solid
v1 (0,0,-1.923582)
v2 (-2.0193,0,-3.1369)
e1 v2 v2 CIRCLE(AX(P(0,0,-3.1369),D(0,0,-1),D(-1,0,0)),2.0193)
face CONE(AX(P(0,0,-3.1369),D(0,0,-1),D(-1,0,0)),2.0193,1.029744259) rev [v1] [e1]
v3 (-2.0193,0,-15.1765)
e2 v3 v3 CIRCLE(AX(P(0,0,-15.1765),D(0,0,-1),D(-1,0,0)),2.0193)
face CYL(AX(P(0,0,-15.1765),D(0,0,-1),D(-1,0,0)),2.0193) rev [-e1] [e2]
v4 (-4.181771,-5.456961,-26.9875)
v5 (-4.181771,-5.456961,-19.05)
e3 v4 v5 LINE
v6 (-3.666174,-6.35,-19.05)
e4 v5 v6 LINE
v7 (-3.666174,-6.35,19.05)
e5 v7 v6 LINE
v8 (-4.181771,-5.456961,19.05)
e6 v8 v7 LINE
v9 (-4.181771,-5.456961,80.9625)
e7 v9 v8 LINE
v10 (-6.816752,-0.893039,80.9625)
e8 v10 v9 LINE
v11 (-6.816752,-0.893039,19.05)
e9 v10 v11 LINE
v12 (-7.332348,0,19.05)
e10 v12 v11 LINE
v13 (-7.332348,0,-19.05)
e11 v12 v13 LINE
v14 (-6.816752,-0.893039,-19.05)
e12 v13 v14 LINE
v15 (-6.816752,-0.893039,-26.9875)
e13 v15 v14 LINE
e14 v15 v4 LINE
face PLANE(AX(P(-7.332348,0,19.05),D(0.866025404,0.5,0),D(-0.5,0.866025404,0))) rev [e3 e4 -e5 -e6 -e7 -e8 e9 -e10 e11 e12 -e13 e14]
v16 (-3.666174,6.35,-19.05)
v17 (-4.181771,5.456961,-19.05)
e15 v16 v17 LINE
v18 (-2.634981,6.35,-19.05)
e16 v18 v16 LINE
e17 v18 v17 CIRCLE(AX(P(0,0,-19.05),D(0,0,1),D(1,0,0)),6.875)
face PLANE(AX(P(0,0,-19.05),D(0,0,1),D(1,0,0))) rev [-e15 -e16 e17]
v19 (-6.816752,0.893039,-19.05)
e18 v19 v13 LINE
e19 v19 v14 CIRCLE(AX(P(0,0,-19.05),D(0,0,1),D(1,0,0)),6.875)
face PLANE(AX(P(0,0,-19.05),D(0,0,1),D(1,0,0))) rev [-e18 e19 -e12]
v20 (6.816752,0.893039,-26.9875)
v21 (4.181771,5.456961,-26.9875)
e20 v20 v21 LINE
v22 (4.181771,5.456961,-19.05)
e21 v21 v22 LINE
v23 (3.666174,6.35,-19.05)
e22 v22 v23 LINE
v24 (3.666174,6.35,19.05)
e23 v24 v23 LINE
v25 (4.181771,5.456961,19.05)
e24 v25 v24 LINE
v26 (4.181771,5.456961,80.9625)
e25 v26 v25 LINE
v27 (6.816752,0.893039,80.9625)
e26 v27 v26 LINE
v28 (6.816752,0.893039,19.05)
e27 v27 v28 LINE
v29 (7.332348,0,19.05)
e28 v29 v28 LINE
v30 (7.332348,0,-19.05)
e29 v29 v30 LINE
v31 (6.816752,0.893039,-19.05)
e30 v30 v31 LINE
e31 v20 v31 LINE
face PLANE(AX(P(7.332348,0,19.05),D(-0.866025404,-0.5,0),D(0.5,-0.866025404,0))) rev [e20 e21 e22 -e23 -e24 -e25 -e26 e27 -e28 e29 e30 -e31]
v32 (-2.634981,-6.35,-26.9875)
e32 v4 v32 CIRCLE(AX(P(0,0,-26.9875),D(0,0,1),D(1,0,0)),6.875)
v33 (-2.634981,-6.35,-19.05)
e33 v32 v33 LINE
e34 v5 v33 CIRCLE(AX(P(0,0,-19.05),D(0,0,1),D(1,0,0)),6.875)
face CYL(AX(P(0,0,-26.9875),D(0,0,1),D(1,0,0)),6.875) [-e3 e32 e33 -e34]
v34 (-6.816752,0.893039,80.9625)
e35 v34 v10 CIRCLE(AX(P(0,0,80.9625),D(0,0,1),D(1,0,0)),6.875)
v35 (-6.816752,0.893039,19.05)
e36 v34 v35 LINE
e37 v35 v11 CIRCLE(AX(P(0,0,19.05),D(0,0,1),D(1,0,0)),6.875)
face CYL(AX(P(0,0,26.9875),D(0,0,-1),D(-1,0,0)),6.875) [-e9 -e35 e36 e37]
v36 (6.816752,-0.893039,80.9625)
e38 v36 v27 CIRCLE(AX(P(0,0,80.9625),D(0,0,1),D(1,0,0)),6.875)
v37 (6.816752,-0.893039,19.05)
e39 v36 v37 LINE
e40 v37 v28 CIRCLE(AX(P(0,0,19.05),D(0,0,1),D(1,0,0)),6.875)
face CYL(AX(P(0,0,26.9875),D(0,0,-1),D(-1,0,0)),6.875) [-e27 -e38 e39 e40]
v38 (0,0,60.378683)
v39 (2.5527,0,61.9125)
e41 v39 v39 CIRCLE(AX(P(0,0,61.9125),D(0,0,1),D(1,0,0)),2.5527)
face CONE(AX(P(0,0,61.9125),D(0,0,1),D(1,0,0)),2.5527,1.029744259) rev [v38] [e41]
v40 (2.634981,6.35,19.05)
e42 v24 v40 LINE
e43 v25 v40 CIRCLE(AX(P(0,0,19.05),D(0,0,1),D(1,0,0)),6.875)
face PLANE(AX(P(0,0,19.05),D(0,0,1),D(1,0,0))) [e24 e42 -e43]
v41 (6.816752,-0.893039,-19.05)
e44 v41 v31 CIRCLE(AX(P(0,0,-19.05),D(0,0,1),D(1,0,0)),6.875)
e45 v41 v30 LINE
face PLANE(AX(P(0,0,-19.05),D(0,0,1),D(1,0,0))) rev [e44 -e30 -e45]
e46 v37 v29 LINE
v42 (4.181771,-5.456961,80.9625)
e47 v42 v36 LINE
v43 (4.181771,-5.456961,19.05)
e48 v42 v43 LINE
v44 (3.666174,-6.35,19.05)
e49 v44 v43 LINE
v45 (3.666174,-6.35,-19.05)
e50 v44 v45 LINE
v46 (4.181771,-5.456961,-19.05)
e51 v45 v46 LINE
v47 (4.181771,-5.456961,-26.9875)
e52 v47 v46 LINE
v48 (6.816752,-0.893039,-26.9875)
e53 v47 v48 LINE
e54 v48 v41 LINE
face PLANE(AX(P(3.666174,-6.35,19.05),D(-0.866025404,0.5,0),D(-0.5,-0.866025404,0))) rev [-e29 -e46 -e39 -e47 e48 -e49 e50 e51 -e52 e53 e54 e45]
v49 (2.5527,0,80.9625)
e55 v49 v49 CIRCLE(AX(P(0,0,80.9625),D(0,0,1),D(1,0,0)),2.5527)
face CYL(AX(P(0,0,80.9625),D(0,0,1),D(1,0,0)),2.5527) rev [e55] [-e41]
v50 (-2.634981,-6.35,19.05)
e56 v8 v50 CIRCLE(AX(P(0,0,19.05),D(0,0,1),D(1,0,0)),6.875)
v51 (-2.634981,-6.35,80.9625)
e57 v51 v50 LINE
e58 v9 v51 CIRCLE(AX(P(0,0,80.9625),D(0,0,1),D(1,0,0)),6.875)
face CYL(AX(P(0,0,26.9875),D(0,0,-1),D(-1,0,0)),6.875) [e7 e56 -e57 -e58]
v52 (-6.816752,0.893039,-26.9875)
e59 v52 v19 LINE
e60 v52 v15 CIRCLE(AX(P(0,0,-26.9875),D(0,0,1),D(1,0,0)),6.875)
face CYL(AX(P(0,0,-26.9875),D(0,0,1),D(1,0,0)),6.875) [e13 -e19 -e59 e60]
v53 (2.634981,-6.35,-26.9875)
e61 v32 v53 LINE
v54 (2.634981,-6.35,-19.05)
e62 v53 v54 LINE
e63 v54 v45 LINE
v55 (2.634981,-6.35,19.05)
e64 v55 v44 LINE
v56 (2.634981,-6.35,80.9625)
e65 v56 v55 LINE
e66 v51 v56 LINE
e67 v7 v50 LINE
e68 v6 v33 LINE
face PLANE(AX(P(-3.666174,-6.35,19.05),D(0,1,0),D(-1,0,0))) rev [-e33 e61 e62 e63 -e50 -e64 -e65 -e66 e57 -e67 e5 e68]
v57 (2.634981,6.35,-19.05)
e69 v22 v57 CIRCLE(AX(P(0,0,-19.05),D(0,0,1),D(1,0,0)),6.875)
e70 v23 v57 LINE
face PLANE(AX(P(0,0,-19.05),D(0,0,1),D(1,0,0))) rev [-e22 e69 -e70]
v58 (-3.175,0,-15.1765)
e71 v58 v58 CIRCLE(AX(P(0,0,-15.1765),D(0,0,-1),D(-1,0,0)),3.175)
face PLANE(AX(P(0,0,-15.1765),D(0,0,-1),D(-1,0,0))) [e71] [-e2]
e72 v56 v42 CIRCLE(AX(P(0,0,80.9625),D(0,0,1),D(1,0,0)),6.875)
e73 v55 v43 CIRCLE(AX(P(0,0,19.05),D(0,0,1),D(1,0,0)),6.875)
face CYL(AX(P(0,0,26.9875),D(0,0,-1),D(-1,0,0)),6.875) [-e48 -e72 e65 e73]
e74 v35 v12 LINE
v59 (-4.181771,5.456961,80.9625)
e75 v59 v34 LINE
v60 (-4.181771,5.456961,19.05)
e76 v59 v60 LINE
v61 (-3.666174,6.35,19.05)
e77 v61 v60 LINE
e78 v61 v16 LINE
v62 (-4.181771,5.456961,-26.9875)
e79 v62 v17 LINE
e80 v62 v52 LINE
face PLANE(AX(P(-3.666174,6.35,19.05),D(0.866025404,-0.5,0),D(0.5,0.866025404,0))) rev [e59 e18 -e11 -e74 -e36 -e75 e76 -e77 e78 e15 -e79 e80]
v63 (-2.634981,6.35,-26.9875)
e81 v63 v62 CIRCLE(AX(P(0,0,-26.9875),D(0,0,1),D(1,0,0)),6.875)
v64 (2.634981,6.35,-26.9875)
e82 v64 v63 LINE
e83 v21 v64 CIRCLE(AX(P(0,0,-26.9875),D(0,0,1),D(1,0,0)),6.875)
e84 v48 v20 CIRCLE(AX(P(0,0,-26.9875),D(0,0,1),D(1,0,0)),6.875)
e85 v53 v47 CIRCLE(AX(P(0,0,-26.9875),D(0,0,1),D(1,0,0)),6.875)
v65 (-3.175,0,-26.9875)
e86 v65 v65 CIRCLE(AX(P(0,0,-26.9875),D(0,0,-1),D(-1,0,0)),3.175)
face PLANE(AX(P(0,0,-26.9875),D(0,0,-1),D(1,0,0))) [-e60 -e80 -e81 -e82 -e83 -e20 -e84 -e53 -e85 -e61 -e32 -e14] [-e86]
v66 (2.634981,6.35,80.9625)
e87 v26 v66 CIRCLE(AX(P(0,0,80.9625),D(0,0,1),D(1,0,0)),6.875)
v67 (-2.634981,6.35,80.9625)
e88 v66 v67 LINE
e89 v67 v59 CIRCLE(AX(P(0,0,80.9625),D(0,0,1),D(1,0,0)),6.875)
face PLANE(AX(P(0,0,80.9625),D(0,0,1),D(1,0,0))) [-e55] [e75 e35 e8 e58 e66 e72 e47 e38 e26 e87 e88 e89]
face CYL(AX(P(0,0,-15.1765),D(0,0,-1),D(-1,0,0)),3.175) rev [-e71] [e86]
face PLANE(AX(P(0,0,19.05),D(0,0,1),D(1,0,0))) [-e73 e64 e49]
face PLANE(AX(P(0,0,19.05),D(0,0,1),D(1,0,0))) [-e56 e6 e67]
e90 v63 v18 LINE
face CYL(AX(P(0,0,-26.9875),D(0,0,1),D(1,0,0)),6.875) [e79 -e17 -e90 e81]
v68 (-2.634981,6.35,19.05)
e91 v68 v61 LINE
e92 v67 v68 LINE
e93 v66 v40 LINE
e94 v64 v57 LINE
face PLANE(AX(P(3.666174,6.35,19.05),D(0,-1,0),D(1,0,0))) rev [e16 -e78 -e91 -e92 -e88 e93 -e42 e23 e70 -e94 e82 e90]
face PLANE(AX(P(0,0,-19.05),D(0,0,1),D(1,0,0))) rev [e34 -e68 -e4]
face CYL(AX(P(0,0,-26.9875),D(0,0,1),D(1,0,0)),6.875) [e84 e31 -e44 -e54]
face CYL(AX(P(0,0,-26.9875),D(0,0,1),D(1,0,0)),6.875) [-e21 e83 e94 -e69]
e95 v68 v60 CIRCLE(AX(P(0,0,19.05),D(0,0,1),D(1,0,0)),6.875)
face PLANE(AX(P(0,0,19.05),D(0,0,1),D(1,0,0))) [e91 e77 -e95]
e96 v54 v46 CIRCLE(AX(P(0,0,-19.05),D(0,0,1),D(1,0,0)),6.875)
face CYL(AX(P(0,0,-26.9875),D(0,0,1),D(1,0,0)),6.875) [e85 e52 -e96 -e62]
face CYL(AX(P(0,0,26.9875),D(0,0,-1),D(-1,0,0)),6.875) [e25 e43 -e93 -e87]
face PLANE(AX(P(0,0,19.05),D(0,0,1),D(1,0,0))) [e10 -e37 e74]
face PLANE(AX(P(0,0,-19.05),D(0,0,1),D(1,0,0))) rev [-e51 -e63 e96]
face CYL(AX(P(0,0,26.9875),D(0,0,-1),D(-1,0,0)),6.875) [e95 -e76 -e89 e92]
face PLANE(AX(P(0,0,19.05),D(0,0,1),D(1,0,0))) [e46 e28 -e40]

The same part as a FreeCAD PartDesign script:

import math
import FreeCAD as App
import Part
import Sketcher
Q = App.Units.Quantity


def add_polygon(sketch, points):
    """Adds a closed chain of lines whose ends are joined by coincident constraints."""
    first, n = sketch.GeometryCount, len(points)
    for a, b in zip(points, points[1:] + points[:1]):
        sketch.addGeometry(Part.LineSegment(App.Vector(*a, 0), App.Vector(*b, 0)), False)
    for i in range(n):
        sketch.addConstraint(Sketcher.Constraint("Coincident", first + i, 2, first + (i + 1) % n, 1))

doc = App.newDocument("Part")
body = doc.addObject("PartDesign::Body", "Body")

# Sketch on XY plane
sketch1 = doc.addObject("Sketcher::SketchObject", "Sketch")
body.addObject(sketch1)
sketch1.AttachmentSupport = (doc.XY_Plane, [""])
sketch1.MapMode = "FlatFace"
add_polygon(sketch1, [(-7, 0), (-4, -6), (4, -6), (7, 0), (4, 6), (-4, 6)])  # lines 0-5
sketch1.addConstraint([
    Sketcher.Constraint("Horizontal", 1),
    Sketcher.Constraint("Horizontal", 4),
    Sketcher.Constraint("Symmetric", 0, 2, 3, 2, -1, 1),
    Sketcher.Constraint("Symmetric", 2, 2, 5, 2, -1, 1),
    Sketcher.Constraint("PointOnObject", 2, 2, -1),
    Sketcher.Constraint("Parallel", 2, 5),
    Sketcher.Constraint("Vertical", 1, 2, 3, 2),
    Sketcher.Constraint("Angle", 0, Q("-60 deg")),
    Sketcher.Constraint("DistanceY", 1, 2, 3, 2, Q("0.5 in")),
    Sketcher.Constraint("DistanceX", 1, 1, 1, 2, 7.332348),
])
pad1 = doc.addObject("PartDesign::Pad", "Pad")
body.addObject(pad1)
pad1.Profile = sketch1
pad1.Length = Q("1.5 in")
pad1.Midplane = True

# Sketch on XY plane
sketch2 = doc.addObject("Sketcher::SketchObject", "Sketch001")
body.addObject(sketch2)
sketch2.AttachmentSupport = (doc.XY_Plane, [""])
sketch2.MapMode = "FlatFace"
sketch2.AttachmentOffset = App.Placement(App.Vector(0, 0, 0.75 * 25.4), App.Rotation())
sketch2.addGeometry([
    Part.LineSegment(App.Vector(6.8, 0.9, 0), App.Vector(4.2, 5.5, 0)),  # 0
    Part.ArcOfCircle(Part.Circle(App.Vector(0, 0, 0), App.Vector(0, 0, 1), 6.9), math.radians(52.54), math.radians(67.46)),  # 1
    Part.LineSegment(App.Vector(2.6, 6.3, 0), App.Vector(-2.6, 6.3, 0)),  # 2
    Part.ArcOfCircle(Part.Circle(App.Vector(0, 0, 0), App.Vector(0, 0, 1), 6.9), math.radians(112.54), math.radians(127.46)),  # 3
    Part.LineSegment(App.Vector(-4.2, 5.5, 0), App.Vector(-6.8, 0.9, 0)),  # 4
    Part.ArcOfCircle(Part.Circle(App.Vector(0, 0, 0), App.Vector(0, 0, 1), 6.9), math.radians(172.54), math.radians(187.46)),  # 5
    Part.LineSegment(App.Vector(-6.8, -0.9, 0), App.Vector(-4.2, -5.5, 0)),  # 6
    Part.ArcOfCircle(Part.Circle(App.Vector(0, 0, 0), App.Vector(0, 0, 1), 6.9), math.radians(-127.46), math.radians(-112.54)),  # 7
    Part.LineSegment(App.Vector(-2.6, -6.3, 0), App.Vector(2.6, -6.3, 0)),  # 8
    Part.ArcOfCircle(Part.Circle(App.Vector(0, 0, 0), App.Vector(0, 0, 1), 6.9), math.radians(-67.46), math.radians(-52.54)),  # 9
    Part.LineSegment(App.Vector(4.2, -5.5, 0), App.Vector(6.8, -0.9, 0)),  # 10
    Part.ArcOfCircle(Part.Circle(App.Vector(0, 0, 0), App.Vector(0, 0, 1), 6.9), math.radians(-7.46), math.radians(7.46)),  # 11
], False)
sketch2.addConstraint([
    Sketcher.Constraint("Coincident", 0, 2, 1, 1),
    Sketcher.Constraint("Coincident", 1, 2, 2, 1),
    Sketcher.Constraint("Coincident", 2, 2, 3, 1),
    Sketcher.Constraint("Coincident", 3, 2, 4, 1),
    Sketcher.Constraint("Coincident", 4, 2, 5, 1),
    Sketcher.Constraint("Coincident", 5, 2, 6, 1),
    Sketcher.Constraint("Coincident", 6, 2, 7, 1),
    Sketcher.Constraint("Coincident", 7, 2, 8, 1),
    Sketcher.Constraint("Coincident", 8, 2, 9, 1),
    Sketcher.Constraint("Coincident", 9, 2, 10, 1),
    Sketcher.Constraint("Coincident", 10, 2, 11, 1),
    Sketcher.Constraint("Coincident", 11, 2, 0, 1),
    Sketcher.Constraint("Horizontal", 2),
    Sketcher.Constraint("Horizontal", 8),
    Sketcher.Constraint("Coincident", 1, 3, -1, 1),
    Sketcher.Constraint("Coincident", 3, 3, -1, 1),
    Sketcher.Constraint("Coincident", 5, 3, -1, 1),
    Sketcher.Constraint("Coincident", 7, 3, -1, 1),
    Sketcher.Constraint("Coincident", 9, 3, -1, 1),
    Sketcher.Constraint("Coincident", 11, 3, -1, 1),
    Sketcher.Constraint("Equal", 1, 3),
    Sketcher.Constraint("Equal", 3, 5),
    Sketcher.Constraint("Equal", 5, 7),
    Sketcher.Constraint("Equal", 7, 9),
    Sketcher.Constraint("Equal", 9, 11),
    Sketcher.Constraint("Parallel", 0, 6),
    Sketcher.Constraint("Parallel", 4, 10),
    Sketcher.Constraint("Horizontal", 0, 2, 3, 2),
    Sketcher.Constraint("Horizontal", 6, 2, 9, 2),
    Sketcher.Constraint("Horizontal", 5, 2, 10, 2),
    Sketcher.Constraint("Vertical", 4, 2, 5, 2),
    Sketcher.Constraint("Vertical", 2, 2, 7, 2),
    Sketcher.Constraint("Angle", 0, Q("120 deg")),
    Sketcher.Constraint("DistanceY", -1, 1, 1, 2, Q("0.25 in")),
    Sketcher.Constraint("Radius", 1, 6.875),
    Sketcher.Constraint("DistanceY", 5, 2, 3, 2, Q("0.25 in")),
])
pad2 = doc.addObject("PartDesign::Pad", "Pad001")
body.addObject(pad2)
pad2.Profile = sketch2
pad2.Length = Q("0.3125 in")
doc.recompute()

mirrored = doc.addObject("PartDesign::Mirrored", "Mirrored")
body.addObject(mirrored)
mirrored.Originals = [pad2]
mirrored.MirrorPlane = (doc.XY_Plane, [""])
body.Tip = mirrored

# Sketch on XY plane
sketch3 = doc.addObject("Sketcher::SketchObject", "Sketch002")
body.addObject(sketch3)
sketch3.AttachmentSupport = (doc.XY_Plane, [""])
sketch3.MapMode = "FlatFace"
sketch3.AttachmentOffset = App.Placement(App.Vector(0, 0, 1.0625 * 25.4), App.Rotation())
sketch3.addGeometry([
    Part.LineSegment(App.Vector(6.8, 0.9, 0), App.Vector(4.2, 5.5, 0)),  # 0
    Part.ArcOfCircle(Part.Circle(App.Vector(0, 0, 0), App.Vector(0, 0, 1), 6.9), math.radians(52.54), math.radians(67.46)),  # 1
    Part.LineSegment(App.Vector(2.6, 6.3, 0), App.Vector(-2.6, 6.3, 0)),  # 2
    Part.ArcOfCircle(Part.Circle(App.Vector(0, 0, 0), App.Vector(0, 0, 1), 6.9), math.radians(112.54), math.radians(127.46)),  # 3
    Part.LineSegment(App.Vector(-4.2, 5.5, 0), App.Vector(-6.8, 0.9, 0)),  # 4
    Part.ArcOfCircle(Part.Circle(App.Vector(0, 0, 0), App.Vector(0, 0, 1), 6.9), math.radians(172.54), math.radians(187.46)),  # 5
    Part.LineSegment(App.Vector(-6.8, -0.9, 0), App.Vector(-4.2, -5.5, 0)),  # 6
    Part.ArcOfCircle(Part.Circle(App.Vector(0, 0, 0), App.Vector(0, 0, 1), 6.9), math.radians(-127.46), math.radians(-112.54)),  # 7
    Part.LineSegment(App.Vector(-2.6, -6.3, 0), App.Vector(2.6, -6.3, 0)),  # 8
    Part.ArcOfCircle(Part.Circle(App.Vector(0, 0, 0), App.Vector(0, 0, 1), 6.9), math.radians(-67.46), math.radians(-52.54)),  # 9
    Part.LineSegment(App.Vector(4.2, -5.5, 0), App.Vector(6.8, -0.9, 0)),  # 10
    Part.ArcOfCircle(Part.Circle(App.Vector(0, 0, 0), App.Vector(0, 0, 1), 6.9), math.radians(-7.46), math.radians(7.46)),  # 11
], False)
sketch3.addConstraint([
    Sketcher.Constraint("Coincident", 0, 2, 1, 1),
    Sketcher.Constraint("Coincident", 1, 2, 2, 1),
    Sketcher.Constraint("Coincident", 2, 2, 3, 1),
    Sketcher.Constraint("Coincident", 3, 2, 4, 1),
    Sketcher.Constraint("Coincident", 4, 2, 5, 1),
    Sketcher.Constraint("Coincident", 5, 2, 6, 1),
    Sketcher.Constraint("Coincident", 6, 2, 7, 1),
    Sketcher.Constraint("Coincident", 7, 2, 8, 1),
    Sketcher.Constraint("Coincident", 8, 2, 9, 1),
    Sketcher.Constraint("Coincident", 9, 2, 10, 1),
    Sketcher.Constraint("Coincident", 10, 2, 11, 1),
    Sketcher.Constraint("Coincident", 11, 2, 0, 1),
    Sketcher.Constraint("Horizontal", 2),
    Sketcher.Constraint("Horizontal", 8),
    Sketcher.Constraint("Coincident", 1, 3, -1, 1),
    Sketcher.Constraint("Coincident", 3, 3, -1, 1),
    Sketcher.Constraint("Coincident", 5, 3, -1, 1),
    Sketcher.Constraint("Coincident", 7, 3, -1, 1),
    Sketcher.Constraint("Coincident", 9, 3, -1, 1),
    Sketcher.Constraint("Coincident", 11, 3, -1, 1),
    Sketcher.Constraint("Equal", 1, 3),
    Sketcher.Constraint("Equal", 3, 5),
    Sketcher.Constraint("Equal", 5, 7),
    Sketcher.Constraint("Equal", 7, 9),
    Sketcher.Constraint("Equal", 9, 11),
    Sketcher.Constraint("Parallel", 0, 6),
    Sketcher.Constraint("Parallel", 4, 10),
    Sketcher.Constraint("Horizontal", 0, 2, 3, 2),
    Sketcher.Constraint("Horizontal", 6, 2, 9, 2),
    Sketcher.Constraint("Horizontal", 5, 2, 10, 2),
    Sketcher.Constraint("Vertical", 4, 2, 5, 2),
    Sketcher.Constraint("Vertical", 2, 2, 7, 2),
    Sketcher.Constraint("Angle", 0, Q("120 deg")),
    Sketcher.Constraint("DistanceY", -1, 1, 1, 2, Q("0.25 in")),
    Sketcher.Constraint("Radius", 1, 6.875),
    Sketcher.Constraint("DistanceY", 5, 2, 3, 2, Q("0.25 in")),
])
pad3 = doc.addObject("PartDesign::Pad", "Pad002")
body.addObject(pad3)
pad3.Profile = sketch3
pad3.Length = Q("2.125 in")

# Sketch on XY plane
sketch4 = doc.addObject("Sketcher::SketchObject", "Sketch003")
body.addObject(sketch4)
sketch4.AttachmentSupport = (doc.XY_Plane, [""])
sketch4.MapMode = "FlatFace"
sketch4.AttachmentOffset = App.Placement(App.Vector(0, 0, -1.0625 * 25.4), App.Rotation())
sketch4.addGeometry(Part.Circle(App.Vector(0, 0, 0), App.Vector(0, 0, 1), 3.2), False)
sketch4.addConstraint([
    Sketcher.Constraint("Coincident", 0, 3, -1, 1),
    Sketcher.Constraint("Diameter", 0, Q("0.25 in")),
])
pocket1 = doc.addObject("PartDesign::Pocket", "Pocket")
body.addObject(pocket1)
pocket1.Profile = sketch4
pocket1.Length = Q("0.465 in")
pocket1.Reversed = True

# Sketch on XY plane
sketch5 = doc.addObject("Sketcher::SketchObject", "Sketch004")
body.addObject(sketch5)
sketch5.AttachmentSupport = (doc.XY_Plane, [""])
sketch5.MapMode = "FlatFace"
sketch5.AttachmentOffset = App.Placement(App.Vector(0, 0, -0.5975 * 25.4), App.Rotation())
sketch5.addGeometry(Part.Circle(App.Vector(0, 0, 0), App.Vector(0, 0, 1), 2), False)
sketch5.addConstraint([
    Sketcher.Constraint("Coincident", 0, 3, -1, 1),
    Sketcher.Constraint("Diameter", 0, Q("0.159 in")),
])
doc.recompute()
hole = doc.addObject("PartDesign::Hole", "Hole")
body.addObject(hole)
hole.Profile = sketch5
hole.ThreadType = "None"
hole.Diameter = Q("0.159 in")
hole.DepthType = "Dimension"
hole.Depth = Q("0.474 in")
hole.DrillPoint = "Angled"
hole.DrillPointAngle = 118
hole.Reversed = True

# Sketch on XY plane
sketch6 = doc.addObject("Sketcher::SketchObject", "Sketch005")
body.addObject(sketch6)
sketch6.AttachmentSupport = (doc.XY_Plane, [""])
sketch6.MapMode = "FlatFace"
sketch6.AttachmentOffset = App.Placement(App.Vector(0, 0, 3.1875 * 25.4), App.Rotation())
sketch6.addGeometry(Part.Circle(App.Vector(0, 0, 0), App.Vector(0, 0, 1), 2.6), False)
sketch6.addConstraint([
    Sketcher.Constraint("Coincident", 0, 3, -1, 1),
    Sketcher.Constraint("Diameter", 0, Q("0.201 in")),
])
doc.recompute()
hole2 = doc.addObject("PartDesign::Hole", "Hole001")
body.addObject(hole2)
hole2.Profile = sketch6
hole2.ThreadType = "None"
hole2.Diameter = Q("0.201 in")
hole2.DepthType = "Dimension"
hole2.Depth = Q("0.75 in")
hole2.DrillPoint = "Angled"
hole2.DrillPointAngle = 118

doc.recompute()
